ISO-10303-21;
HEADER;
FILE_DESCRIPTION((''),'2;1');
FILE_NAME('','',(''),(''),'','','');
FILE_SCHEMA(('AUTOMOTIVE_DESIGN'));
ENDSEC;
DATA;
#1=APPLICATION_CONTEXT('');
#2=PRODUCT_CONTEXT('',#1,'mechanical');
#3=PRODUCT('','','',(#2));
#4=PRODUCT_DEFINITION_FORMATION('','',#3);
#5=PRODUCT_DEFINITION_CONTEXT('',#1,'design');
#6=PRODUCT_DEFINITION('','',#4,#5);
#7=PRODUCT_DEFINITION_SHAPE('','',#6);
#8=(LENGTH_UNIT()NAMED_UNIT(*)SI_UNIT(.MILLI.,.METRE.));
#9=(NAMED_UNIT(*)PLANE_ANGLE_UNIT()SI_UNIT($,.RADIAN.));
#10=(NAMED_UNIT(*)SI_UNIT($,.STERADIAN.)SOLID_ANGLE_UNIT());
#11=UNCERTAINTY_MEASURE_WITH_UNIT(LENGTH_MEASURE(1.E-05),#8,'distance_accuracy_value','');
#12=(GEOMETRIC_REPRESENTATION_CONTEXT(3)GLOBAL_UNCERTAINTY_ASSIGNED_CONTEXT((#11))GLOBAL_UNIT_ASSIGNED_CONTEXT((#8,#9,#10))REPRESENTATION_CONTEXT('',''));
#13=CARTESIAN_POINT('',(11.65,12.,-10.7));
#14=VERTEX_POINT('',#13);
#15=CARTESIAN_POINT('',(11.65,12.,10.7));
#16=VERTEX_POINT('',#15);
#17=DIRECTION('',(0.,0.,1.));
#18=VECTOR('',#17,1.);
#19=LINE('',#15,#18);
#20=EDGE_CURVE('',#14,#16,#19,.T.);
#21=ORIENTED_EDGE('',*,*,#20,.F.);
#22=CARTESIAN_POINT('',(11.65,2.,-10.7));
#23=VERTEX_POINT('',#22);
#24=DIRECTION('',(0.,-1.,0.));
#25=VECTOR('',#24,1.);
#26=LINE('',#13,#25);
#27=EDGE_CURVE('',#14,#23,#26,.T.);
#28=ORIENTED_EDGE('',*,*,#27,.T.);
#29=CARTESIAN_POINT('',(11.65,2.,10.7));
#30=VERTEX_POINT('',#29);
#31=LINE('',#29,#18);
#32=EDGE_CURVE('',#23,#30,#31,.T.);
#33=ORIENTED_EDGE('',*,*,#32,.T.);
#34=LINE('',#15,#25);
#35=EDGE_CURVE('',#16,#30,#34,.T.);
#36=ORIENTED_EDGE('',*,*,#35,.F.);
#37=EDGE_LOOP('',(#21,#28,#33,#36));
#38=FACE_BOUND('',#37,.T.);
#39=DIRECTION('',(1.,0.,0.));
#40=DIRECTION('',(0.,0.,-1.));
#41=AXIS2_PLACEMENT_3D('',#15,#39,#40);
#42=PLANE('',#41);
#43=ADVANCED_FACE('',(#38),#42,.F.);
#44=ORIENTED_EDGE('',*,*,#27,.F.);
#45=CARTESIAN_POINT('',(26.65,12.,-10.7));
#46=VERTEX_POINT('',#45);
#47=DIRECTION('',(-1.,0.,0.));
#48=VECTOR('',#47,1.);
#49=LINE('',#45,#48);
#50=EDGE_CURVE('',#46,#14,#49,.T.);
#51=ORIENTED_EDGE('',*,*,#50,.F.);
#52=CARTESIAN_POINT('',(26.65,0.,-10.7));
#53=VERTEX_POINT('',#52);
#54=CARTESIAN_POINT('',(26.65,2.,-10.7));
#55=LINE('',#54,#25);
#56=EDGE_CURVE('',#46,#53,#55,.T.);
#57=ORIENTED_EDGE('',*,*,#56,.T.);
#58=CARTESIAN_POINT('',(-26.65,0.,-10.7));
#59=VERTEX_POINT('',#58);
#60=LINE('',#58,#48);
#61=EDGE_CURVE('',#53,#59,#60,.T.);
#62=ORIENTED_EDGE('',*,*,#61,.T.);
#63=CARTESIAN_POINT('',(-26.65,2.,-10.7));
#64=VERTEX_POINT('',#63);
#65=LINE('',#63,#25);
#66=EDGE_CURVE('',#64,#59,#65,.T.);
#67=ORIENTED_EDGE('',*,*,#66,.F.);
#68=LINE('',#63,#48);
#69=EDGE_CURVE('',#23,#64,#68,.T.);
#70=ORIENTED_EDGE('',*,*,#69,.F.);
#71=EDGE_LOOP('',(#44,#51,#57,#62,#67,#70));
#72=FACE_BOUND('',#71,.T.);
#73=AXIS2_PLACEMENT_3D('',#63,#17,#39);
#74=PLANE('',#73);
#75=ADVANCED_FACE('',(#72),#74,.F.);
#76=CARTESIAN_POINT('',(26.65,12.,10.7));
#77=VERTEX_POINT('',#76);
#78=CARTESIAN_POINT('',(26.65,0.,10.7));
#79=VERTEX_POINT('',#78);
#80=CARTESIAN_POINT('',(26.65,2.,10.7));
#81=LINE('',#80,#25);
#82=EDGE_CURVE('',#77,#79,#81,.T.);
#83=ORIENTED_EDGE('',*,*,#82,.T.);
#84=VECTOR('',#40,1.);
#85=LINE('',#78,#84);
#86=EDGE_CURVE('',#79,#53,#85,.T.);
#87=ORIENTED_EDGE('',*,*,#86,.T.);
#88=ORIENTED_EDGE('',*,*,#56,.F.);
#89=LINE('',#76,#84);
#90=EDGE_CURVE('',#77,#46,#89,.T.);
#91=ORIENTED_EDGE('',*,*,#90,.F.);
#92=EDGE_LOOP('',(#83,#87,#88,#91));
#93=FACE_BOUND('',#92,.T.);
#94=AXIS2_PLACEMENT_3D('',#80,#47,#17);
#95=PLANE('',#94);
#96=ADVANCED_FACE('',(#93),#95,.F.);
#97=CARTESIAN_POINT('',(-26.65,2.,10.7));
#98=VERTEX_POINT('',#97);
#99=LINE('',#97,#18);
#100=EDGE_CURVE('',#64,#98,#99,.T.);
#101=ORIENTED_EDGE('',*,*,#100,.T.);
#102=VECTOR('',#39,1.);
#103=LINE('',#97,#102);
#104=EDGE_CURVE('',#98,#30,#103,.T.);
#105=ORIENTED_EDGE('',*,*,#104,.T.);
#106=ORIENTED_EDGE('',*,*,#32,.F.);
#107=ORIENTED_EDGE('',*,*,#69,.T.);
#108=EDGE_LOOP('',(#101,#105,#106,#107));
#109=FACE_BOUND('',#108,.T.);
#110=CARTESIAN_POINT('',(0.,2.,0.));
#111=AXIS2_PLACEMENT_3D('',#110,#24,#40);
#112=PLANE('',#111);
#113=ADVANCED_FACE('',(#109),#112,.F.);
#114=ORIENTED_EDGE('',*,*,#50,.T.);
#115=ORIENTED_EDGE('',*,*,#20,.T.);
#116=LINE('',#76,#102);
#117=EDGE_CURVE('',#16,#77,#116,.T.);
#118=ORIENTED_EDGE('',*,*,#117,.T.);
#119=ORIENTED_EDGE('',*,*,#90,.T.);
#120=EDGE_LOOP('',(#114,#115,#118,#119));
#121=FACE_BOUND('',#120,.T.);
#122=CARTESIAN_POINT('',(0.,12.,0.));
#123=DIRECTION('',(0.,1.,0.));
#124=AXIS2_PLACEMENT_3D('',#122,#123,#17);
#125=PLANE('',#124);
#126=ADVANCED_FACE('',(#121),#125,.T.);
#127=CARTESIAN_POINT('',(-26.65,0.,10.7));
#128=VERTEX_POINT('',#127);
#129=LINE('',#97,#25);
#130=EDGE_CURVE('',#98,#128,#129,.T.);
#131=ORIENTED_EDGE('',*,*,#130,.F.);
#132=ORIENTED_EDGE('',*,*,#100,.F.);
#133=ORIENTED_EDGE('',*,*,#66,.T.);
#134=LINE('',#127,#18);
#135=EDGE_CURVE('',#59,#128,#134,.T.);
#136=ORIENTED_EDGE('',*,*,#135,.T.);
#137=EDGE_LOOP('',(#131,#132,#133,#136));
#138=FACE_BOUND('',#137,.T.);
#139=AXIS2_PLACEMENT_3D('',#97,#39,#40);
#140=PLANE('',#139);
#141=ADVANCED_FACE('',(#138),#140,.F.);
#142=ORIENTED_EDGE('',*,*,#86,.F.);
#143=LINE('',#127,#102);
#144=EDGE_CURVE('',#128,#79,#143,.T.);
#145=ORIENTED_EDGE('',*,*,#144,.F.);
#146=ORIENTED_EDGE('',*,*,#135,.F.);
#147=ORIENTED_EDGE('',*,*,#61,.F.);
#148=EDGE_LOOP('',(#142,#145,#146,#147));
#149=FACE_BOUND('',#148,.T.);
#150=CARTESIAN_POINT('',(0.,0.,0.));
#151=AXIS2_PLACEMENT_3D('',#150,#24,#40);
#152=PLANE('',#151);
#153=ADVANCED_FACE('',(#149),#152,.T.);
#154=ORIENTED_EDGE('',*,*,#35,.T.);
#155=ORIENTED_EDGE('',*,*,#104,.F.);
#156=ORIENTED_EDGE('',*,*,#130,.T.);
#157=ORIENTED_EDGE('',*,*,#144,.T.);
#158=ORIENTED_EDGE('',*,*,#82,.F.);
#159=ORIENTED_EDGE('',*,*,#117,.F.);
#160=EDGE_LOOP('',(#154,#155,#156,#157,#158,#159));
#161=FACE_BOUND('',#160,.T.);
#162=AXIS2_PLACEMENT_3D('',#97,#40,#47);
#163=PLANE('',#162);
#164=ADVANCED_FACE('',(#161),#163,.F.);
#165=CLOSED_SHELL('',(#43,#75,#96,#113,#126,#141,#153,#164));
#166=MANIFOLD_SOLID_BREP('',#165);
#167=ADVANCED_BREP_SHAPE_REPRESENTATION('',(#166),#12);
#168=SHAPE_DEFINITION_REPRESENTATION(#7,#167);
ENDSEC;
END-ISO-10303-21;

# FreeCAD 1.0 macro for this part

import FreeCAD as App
import Part
import Sketcher
from FreeCAD import Vector

doc = App.newDocument("Part")
body = doc.addObject("PartDesign::Body", "Body")

sketch1 = body.newObject("Sketcher::SketchObject", "Sketch")
sketch1.AttachmentSupport = (doc.getObject("XZ_Plane"), [""])
sketch1.MapMode = "FlatFace"
sketch1.addGeometry([
    Part.LineSegment(Vector(-27, -11, 0), Vector(-27, 11, 0)),
    Part.LineSegment(Vector(-27, 11, 0), Vector(27, 11, 0)),
    Part.LineSegment(Vector(27, 11, 0), Vector(27, -11, 0)),
    Part.LineSegment(Vector(27, -11, 0), Vector(-27, -11, 0)),
], False)
sketch1.addConstraint([
    Sketcher.Constraint("Coincident", 0, 2, 1, 1),
    Sketcher.Constraint("Coincident", 1, 2, 2, 1),
    Sketcher.Constraint("Coincident", 2, 2, 3, 1),
    Sketcher.Constraint("Coincident", 3, 2, 0, 1),
    Sketcher.Constraint("Vertical", 0),
    Sketcher.Constraint("Horizontal", 1),
    Sketcher.Constraint("Vertical", 2),
    Sketcher.Constraint("Horizontal", 3),
    Sketcher.Constraint("Symmetric", 0, 2, 2, 2, -1, 1),
    Sketcher.Constraint("DistanceX", 1, 1, 1, 2, 53.3),
    Sketcher.Constraint("DistanceY", 0, 1, 0, 2, 21.4),
])
pad1 = body.newObject("PartDesign::Pad", "Pad")
pad1.Profile = sketch1
pad1.Length = 2
pad1.Reversed = True

sketch2 = body.newObject("Sketcher::SketchObject", "Sketch001")
sketch2.AttachmentSupport = (doc.getObject("XZ_Plane"), [""])
sketch2.MapMode = "FlatFace"
sketch2.AttachmentOffset = App.Placement(Vector(0, 0, -2), App.Rotation())
sketch2.addGeometry([
    Part.LineSegment(Vector(12, -11, 0), Vector(12, 11, 0)),
    Part.LineSegment(Vector(12, 11, 0), Vector(27, 11, 0)),
    Part.LineSegment(Vector(27, 11, 0), Vector(27, -11, 0)),
    Part.LineSegment(Vector(27, -11, 0), Vector(12, -11, 0)),
], False)
sketch2.addConstraint([
    Sketcher.Constraint("Coincident", 0, 2, 1, 1),
    Sketcher.Constraint("Coincident", 1, 2, 2, 1),
    Sketcher.Constraint("Coincident", 2, 2, 3, 1),
    Sketcher.Constraint("Coincident", 3, 2, 0, 1),
    Sketcher.Constraint("Vertical", 0),
    Sketcher.Constraint("Horizontal", 1),
    Sketcher.Constraint("Vertical", 2),
    Sketcher.Constraint("Horizontal", 3),
    Sketcher.Constraint("DistanceX", 1, 1, 1, 2, 15.0),
    Sketcher.Constraint("DistanceY", 0, 1, 0, 2, 21.4),
    Sketcher.Constraint("DistanceY", -1, 1, 0, 2, 10.7),
    Sketcher.Constraint("DistanceX", -1, 1, 0, 2, 11.65),
])
pad2 = body.newObject("PartDesign::Pad", "Pad001")
pad2.Profile = sketch2
pad2.Length = 10
pad2.Reversed = True

doc.recompute()
